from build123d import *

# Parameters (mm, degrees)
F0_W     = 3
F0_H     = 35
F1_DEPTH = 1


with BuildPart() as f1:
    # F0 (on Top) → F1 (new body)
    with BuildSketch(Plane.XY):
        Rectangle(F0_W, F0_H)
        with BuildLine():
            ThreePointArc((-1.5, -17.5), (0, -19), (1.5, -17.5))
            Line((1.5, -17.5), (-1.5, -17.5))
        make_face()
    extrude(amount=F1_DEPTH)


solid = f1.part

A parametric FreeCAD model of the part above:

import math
import FreeCAD as App
import Part
import Sketcher
from FreeCAD import Vector
Q = App.Units.Quantity

doc = App.newDocument("Part")
body = doc.addObject("PartDesign::Body", "Body")

sketch1 = body.newObject("Sketcher::SketchObject", "Sketch")
sketch1.AttachmentSupport = (doc.getObject("XY_Plane"), [""])
sketch1.MapMode = "FlatFace"
sketch1.addGeometry([
    Part.LineSegment(Vector(-1.5, 17.5, 0), Vector(-1.5, -17.5, 0)),
    Part.ArcOfCircle(Part.Circle(Vector(0, -17.5, 0), Vector(0, 0, 1), 1.5), math.radians(180), math.radians(360)),
    Part.LineSegment(Vector(1.5, -17.5, 0), Vector(1.5, 17.5, 0)),
    Part.LineSegment(Vector(1.5, 17.5, 0), Vector(-1.5, 17.5, 0)),
], False)
sketch1.addConstraint([
    Sketcher.Constraint("Tangent", 0, 2, 1, 1),
    Sketcher.Constraint("Tangent", 1, 2, 2, 1),
    Sketcher.Constraint("Coincident", 2, 2, 3, 1),
    Sketcher.Constraint("Coincident", 3, 2, 0, 1),
    Sketcher.Constraint("Vertical", 0),
    Sketcher.Constraint("Vertical", 2),
    Sketcher.Constraint("Horizontal", 3),
    Sketcher.Constraint("Symmetric", 0, 2, 2, 2, -1, 1),
    Sketcher.Constraint("Radius", 1, Q("1.5 mm")),
    Sketcher.Constraint("DistanceY", 0, 2, 0, 1, Q("35 mm")),
])
pad1 = body.newObject("PartDesign::Pad", "Pad")
pad1.Profile = sketch1
pad1.Length = 1

doc.recompute()
